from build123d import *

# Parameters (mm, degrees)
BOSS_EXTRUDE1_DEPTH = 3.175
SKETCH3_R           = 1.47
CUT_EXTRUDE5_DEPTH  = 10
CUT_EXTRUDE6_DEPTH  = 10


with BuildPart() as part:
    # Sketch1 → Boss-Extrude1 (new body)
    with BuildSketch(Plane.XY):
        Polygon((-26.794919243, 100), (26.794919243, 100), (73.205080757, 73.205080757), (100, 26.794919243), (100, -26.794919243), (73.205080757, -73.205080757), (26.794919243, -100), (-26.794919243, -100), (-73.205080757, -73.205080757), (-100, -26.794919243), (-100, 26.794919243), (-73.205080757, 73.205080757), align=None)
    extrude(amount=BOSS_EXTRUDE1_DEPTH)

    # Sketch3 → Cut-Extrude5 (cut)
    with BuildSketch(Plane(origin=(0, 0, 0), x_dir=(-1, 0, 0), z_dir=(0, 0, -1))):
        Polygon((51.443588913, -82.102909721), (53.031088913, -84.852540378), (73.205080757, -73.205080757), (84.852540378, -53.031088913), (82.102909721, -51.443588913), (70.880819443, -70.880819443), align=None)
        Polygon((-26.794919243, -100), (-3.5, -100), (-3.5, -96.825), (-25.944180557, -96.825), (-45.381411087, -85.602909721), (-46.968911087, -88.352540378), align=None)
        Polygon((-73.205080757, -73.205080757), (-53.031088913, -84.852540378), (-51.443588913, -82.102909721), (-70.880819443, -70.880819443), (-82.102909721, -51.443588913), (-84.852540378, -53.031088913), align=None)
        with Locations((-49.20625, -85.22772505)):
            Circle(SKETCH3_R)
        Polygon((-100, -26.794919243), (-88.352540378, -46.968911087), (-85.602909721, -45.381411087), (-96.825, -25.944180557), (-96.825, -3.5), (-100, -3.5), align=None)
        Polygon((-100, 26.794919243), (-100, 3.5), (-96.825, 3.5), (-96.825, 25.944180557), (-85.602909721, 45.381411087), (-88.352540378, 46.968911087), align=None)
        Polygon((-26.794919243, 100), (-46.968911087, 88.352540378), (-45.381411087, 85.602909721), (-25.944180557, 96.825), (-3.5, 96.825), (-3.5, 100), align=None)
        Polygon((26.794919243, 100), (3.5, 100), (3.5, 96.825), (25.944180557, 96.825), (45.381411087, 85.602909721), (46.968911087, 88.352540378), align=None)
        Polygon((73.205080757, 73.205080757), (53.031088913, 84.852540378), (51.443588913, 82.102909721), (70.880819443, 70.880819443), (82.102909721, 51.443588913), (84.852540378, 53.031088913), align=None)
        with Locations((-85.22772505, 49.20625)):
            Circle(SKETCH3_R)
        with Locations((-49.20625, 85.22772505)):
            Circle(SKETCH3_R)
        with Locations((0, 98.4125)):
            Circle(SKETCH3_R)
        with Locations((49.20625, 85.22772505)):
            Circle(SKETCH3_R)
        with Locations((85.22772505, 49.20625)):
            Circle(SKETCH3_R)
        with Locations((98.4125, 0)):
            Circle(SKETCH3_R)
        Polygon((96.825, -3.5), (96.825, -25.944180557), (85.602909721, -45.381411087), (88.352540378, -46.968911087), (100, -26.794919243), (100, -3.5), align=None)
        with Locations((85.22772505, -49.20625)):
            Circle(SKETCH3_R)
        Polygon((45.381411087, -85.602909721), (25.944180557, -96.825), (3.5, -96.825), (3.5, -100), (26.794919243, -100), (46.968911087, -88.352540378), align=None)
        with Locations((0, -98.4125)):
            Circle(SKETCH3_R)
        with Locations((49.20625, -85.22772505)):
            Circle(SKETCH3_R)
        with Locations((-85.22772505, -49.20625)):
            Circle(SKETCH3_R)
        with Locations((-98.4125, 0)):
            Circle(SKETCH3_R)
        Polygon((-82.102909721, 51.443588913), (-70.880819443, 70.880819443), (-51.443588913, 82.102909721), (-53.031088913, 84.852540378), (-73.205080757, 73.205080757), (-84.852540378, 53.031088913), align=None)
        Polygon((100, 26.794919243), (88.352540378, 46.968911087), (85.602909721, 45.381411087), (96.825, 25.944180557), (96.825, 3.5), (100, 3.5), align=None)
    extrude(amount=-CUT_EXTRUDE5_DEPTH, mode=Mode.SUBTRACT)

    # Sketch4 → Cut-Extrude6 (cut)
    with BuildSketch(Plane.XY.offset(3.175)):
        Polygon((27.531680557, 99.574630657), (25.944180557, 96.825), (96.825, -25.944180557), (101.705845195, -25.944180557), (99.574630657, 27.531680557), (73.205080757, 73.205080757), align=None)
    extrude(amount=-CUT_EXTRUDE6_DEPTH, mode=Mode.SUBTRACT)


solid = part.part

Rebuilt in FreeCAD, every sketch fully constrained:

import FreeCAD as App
import Part
import Sketcher
Q = App.Units.Quantity


def add_polygon(sketch, points):
    """Adds a closed chain of lines whose ends are joined by coincident constraints."""
    first, n = sketch.GeometryCount, len(points)
    for a, b in zip(points, points[1:] + points[:1]):
        sketch.addGeometry(Part.LineSegment(App.Vector(*a, 0), App.Vector(*b, 0)), False)
    for i in range(n):
        sketch.addConstraint(Sketcher.Constraint("Coincident", first + i, 2, first + (i + 1) % n, 1))

doc = App.newDocument("Part")
body = doc.addObject("PartDesign::Body", "Body")

# Sketch on XY plane
sketch1 = doc.addObject("Sketcher::SketchObject", "Sketch")
body.addObject(sketch1)
sketch1.AttachmentSupport = (doc.XY_Plane, [""])
sketch1.MapMode = "FlatFace"
add_polygon(sketch1, [(27, 100), (-27, 100), (-73, 73), (-100, 27), (-100, -27), (-73, -73), (-27, -100), (27, -100), (73, -73), (100, -27), (100, 27), (73, 73)])  # lines 0-11
sketch1.addConstraint([
    Sketcher.Constraint("Horizontal", 0),
    Sketcher.Constraint("Vertical", 3),
    Sketcher.Constraint("Horizontal", 6),
    Sketcher.Constraint("Vertical", 9),
    Sketcher.Constraint("Symmetric", 0, 2, 6, 2, -1, 1),
    Sketcher.Constraint("Symmetric", 1, 2, 7, 2, -1, 1),
    Sketcher.Constraint("Symmetric", 2, 2, 8, 2, -1, 1),
    Sketcher.Constraint("Symmetric", 4, 2, 10, 2, -1, 1),
    Sketcher.Constraint("Symmetric", 4, 2, 7, 2, -2),
    Sketcher.Constraint("Perpendicular", 1, 4),
    Sketcher.Constraint("Perpendicular", 2, 5),
    Sketcher.Constraint("Perpendicular", 7, 10),
    Sketcher.Constraint("Perpendicular", 8, 11),
    Sketcher.Constraint("Horizontal", 3, 2, 8, 2),
    Sketcher.Constraint("Equal", 6, 3),
    Sketcher.Constraint("Equal", 1, 2),
    Sketcher.Constraint("Angle", 1, Q("-150 deg")),
    Sketcher.Constraint("DistanceY", -1, 1, 0, 2, Q("100 mm")),
    Sketcher.Constraint("DistanceY", 3, 2, 1, 2, Q("100 mm")),
])
pad1 = doc.addObject("PartDesign::Pad", "Pad")
body.addObject(pad1)
pad1.Profile = sketch1
pad1.Length = 3.175

# Sketch on XY plane
sketch2 = doc.addObject("Sketcher::SketchObject", "Sketch001")
body.addObject(sketch2)
sketch2.AttachmentSupport = (doc.XY_Plane, [""])
sketch2.MapMode = "FlatFace"
add_polygon(sketch2, [(-51.4, -82.1), (-53, -84.9), (-73.2, -73.2), (-84.9, -53), (-82.1, -51.4), (-70.9, -70.9)])  # lines 0-5
add_polygon(sketch2, [(26.8, -100), (3.5, -100), (3.5, -96.8), (25.9, -96.8), (45.4, -85.6), (47, -88.4)])  # lines 6-11
add_polygon(sketch2, [(73.2, -73.2), (53, -84.9), (51.4, -82.1), (70.9, -70.9), (82.1, -51.4), (84.9, -53)])  # lines 12-17
sketch2.addGeometry(Part.Circle(App.Vector(49.2, -85.2, 0), App.Vector(0, 0, 1), 1.5), False)  # 18
add_polygon(sketch2, [(100, -26.8), (88.4, -47), (85.6, -45.4), (96.8, -25.9), (96.8, -3.5), (100, -3.5)])  # lines 19-24
add_polygon(sketch2, [(100, 26.8), (100, 3.5), (96.8, 3.5), (96.8, 25.9), (85.6, 45.4), (88.4, 47)])  # lines 25-30
add_polygon(sketch2, [(26.8, 100), (47, 88.4), (45.4, 85.6), (25.9, 96.8), (3.5, 96.8), (3.5, 100)])  # lines 31-36
add_polygon(sketch2, [(-26.8, 100), (-3.5, 100), (-3.5, 96.8), (-25.9, 96.8), (-45.4, 85.6), (-47, 88.4)])  # lines 37-42
add_polygon(sketch2, [(-73.2, 73.2), (-53, 84.9), (-51.4, 82.1), (-70.9, 70.9), (-82.1, 51.4), (-84.9, 53)])  # lines 43-48
sketch2.addGeometry(Part.Circle(App.Vector(85.2, 49.2, 0), App.Vector(0, 0, 1), 1.5), False)  # 49
sketch2.addGeometry(Part.Circle(App.Vector(49.2, 85.2, 0), App.Vector(0, 0, 1), 1.5), False)  # 50
sketch2.addGeometry(Part.Circle(App.Vector(0, 98.4, 0), App.Vector(0, 0, 1), 1.5), False)  # 51
sketch2.addGeometry(Part.Circle(App.Vector(-49.2, 85.2, 0), App.Vector(0, 0, 1), 1.5), False)  # 52
sketch2.addGeometry(Part.Circle(App.Vector(-85.2, 49.2, 0), App.Vector(0, 0, 1), 1.5), False)  # 53
sketch2.addGeometry(Part.Circle(App.Vector(-98.4, 0, 0), App.Vector(0, 0, 1), 1.5), False)  # 54
add_polygon(sketch2, [(-96.8, -3.5), (-96.8, -25.9), (-85.6, -45.4), (-88.4, -47), (-100, -26.8), (-100, -3.5)])  # lines 55-60
sketch2.addGeometry(Part.Circle(App.Vector(-85.2, -49.2, 0), App.Vector(0, 0, 1), 1.5), False)  # 61
add_polygon(sketch2, [(-45.4, -85.6), (-25.9, -96.8), (-3.5, -96.8), (-3.5, -100), (-26.8, -100), (-47, -88.4)])  # lines 62-67
sketch2.addGeometry(Part.Circle(App.Vector(0, -98.4, 0), App.Vector(0, 0, 1), 1.5), False)  # 68
sketch2.addGeometry(Part.Circle(App.Vector(-49.2, -85.2, 0), App.Vector(0, 0, 1), 1.5), False)  # 69
sketch2.addGeometry(Part.Circle(App.Vector(85.2, -49.2, 0), App.Vector(0, 0, 1), 1.5), False)  # 70
sketch2.addGeometry(Part.Circle(App.Vector(98.4, 0, 0), App.Vector(0, 0, 1), 1.5), False)  # 71
add_polygon(sketch2, [(82.1, 51.4), (70.9, 70.9), (51.4, 82.1), (53, 84.9), (73.2, 73.2), (84.9, 53)])  # lines 72-77
add_polygon(sketch2, [(-100, 26.8), (-88.4, 47), (-85.6, 45.4), (-96.8, 25.9), (-96.8, 3.5), (-100, 3.5)])  # lines 78-83
sketch2.addConstraint([
    Sketcher.Constraint("Horizontal", 6),
    Sketcher.Constraint("Vertical", 7),
    Sketcher.Constraint("Horizontal", 8),
    Sketcher.Constraint("Vertical", 22),
    Sketcher.Constraint("Horizontal", 23),
    Sketcher.Constraint("Vertical", 24),
    Sketcher.Constraint("Vertical", 25),
    Sketcher.Constraint("Horizontal", 26),
    Sketcher.Constraint("Vertical", 27),
    Sketcher.Constraint("Horizontal", 34),
    Sketcher.Constraint("Vertical", 35),
    Sketcher.Constraint("Horizontal", 36),
    Sketcher.Constraint("Horizontal", 37),
    Sketcher.Constraint("Vertical", 38),
    Sketcher.Constraint("Horizontal", 39),
    Sketcher.Constraint("Vertical", 55),
    Sketcher.Constraint("Vertical", 59),
    Sketcher.Constraint("Horizontal", 60),
    Sketcher.Constraint("Horizontal", 63),
    Sketcher.Constraint("Vertical", 64),
    Sketcher.Constraint("Horizontal", 65),
    Sketcher.Constraint("Vertical", 81),
    Sketcher.Constraint("Horizontal", 82),
    Sketcher.Constraint("Vertical", 83),
    Sketcher.Constraint("Equal", 18, 49),
    Sketcher.Constraint("Equal", 49, 50),
    Sketcher.Constraint("Equal", 50, 51),
    Sketcher.Constraint("Equal", 51, 52),
    Sketcher.Constraint("Equal", 52, 53),
    Sketcher.Constraint("Equal", 53, 54),
    Sketcher.Constraint("Equal", 54, 61),
    Sketcher.Constraint("Equal", 61, 68),
    Sketcher.Constraint("Equal", 68, 69),
    Sketcher.Constraint("Equal", 69, 70),
    Sketcher.Constraint("Equal", 70, 71),
    Sketcher.Constraint("Symmetric", 18, 3, 52, 3, -1, 1),
    Sketcher.Constraint("Symmetric", 49, 3, 61, 3, -1, 1),
    Sketcher.Constraint("Symmetric", 51, 3, 68, 3, -1, 1),
    Sketcher.Constraint("Symmetric", 50, 3, 69, 3, -1, 1),
    Sketcher.Constraint("Symmetric", 53, 3, 70, 3, -1, 1),
    Sketcher.Constraint("Symmetric", 54, 3, 71, 3, -1, 1),
    Sketcher.Constraint("Symmetric", 6, 2, 37, 2, -1, 1),
    Sketcher.Constraint("Symmetric", 8, 2, 39, 2, -1, 1),
    Sketcher.Constraint("Symmetric", 9, 2, 40, 2, -1, 1),
    Sketcher.Constraint("Symmetric", 10, 2, 41, 2, -1, 1),
    Sketcher.Constraint("Symmetric", 12, 2, 43, 2, -1, 1),
    Sketcher.Constraint("Symmetric", 13, 2, 44, 2, -1, 1),
    Sketcher.Constraint("Symmetric", 14, 2, 45, 2, -1, 1),
    Sketcher.Constraint("Symmetric", 15, 2, 46, 2, -1, 1),
    Sketcher.Constraint("Symmetric", 16, 2, 47, 2, -1, 1),
    Sketcher.Constraint("Symmetric", 17, 2, 48, 2, -1, 1),
    Sketcher.Constraint("Symmetric", 27, 2, 55, 2, -1, 1),
    Sketcher.Constraint("Symmetric", 28, 2, 56, 2, -1, 1),
    Sketcher.Constraint("Symmetric", 29, 2, 57, 2, -1, 1),
    Sketcher.Constraint("Symmetric", 30, 2, 58, 2, -1, 1),
    Sketcher.Constraint("Symmetric", 33, 2, 62, 2, -1, 1),
    Sketcher.Constraint("Symmetric", 35, 2, 64, 2, -1, 1),
    Sketcher.Constraint("Symmetric", 31, 2, 66, 2, -1, 1),
    Sketcher.Constraint("Symmetric", 32, 2, 67, 2, -1, 1),
    Sketcher.Constraint("Symmetric", 4, 2, 72, 2, -1, 1),
    Sketcher.Constraint("Symmetric", 5, 2, 73, 2, -1, 1),
    Sketcher.Constraint("Symmetric", 0, 2, 74, 2, -1, 1),
    Sketcher.Constraint("Symmetric", 1, 2, 75, 2, -1, 1),
    Sketcher.Constraint("Symmetric", 2, 2, 76, 2, -1, 1),
    Sketcher.Constraint("Symmetric", 3, 2, 77, 2, -1, 1),
    Sketcher.Constraint("Symmetric", 19, 2, 78, 2, -1, 1),
    Sketcher.Constraint("Symmetric", 20, 2, 79, 2, -1, 1),
    Sketcher.Constraint("Symmetric", 21, 2, 80, 2, -1, 1),
    Sketcher.Constraint("Symmetric", 23, 2, 82, 2, -1, 1),
    Sketcher.Constraint("Symmetric", 50, 3, 52, 3, -2),
    Sketcher.Constraint("Symmetric", 49, 3, 53, 3, -2),
    Sketcher.Constraint("Symmetric", 0, 2, 12, 2, -2),
    Sketcher.Constraint("Symmetric", 5, 2, 13, 2, -2),
    Sketcher.Constraint("Symmetric", 4, 2, 14, 2, -2),
    Sketcher.Constraint("Symmetric", 3, 2, 15, 2, -2),
    Sketcher.Constraint("Symmetric", 2, 2, 16, 2, -2),
    Sketcher.Constraint("Symmetric", 1, 2, 17, 2, -2),
    Sketcher.Constraint("Symmetric", 35, 2, 37, 2, -2),
    Sketcher.Constraint("Symmetric", 33, 2, 39, 2, -2),
    Sketcher.Constraint("Symmetric", 32, 2, 40, 2, -2),
    Sketcher.Constraint("Symmetric", 31, 2, 41, 2, -2),
    Sketcher.Constraint("Symmetric", 21, 2, 55, 2, -2),
    Sketcher.Constraint("Symmetric", 20, 2, 56, 2, -2),
    Sketcher.Constraint("Symmetric", 19, 2, 57, 2, -2),
    Sketcher.Constraint("Symmetric", 24, 2, 58, 2, -2),
    Sketcher.Constraint("PointOnObject", 51, 3, -2),
    Sketcher.Constraint("PointOnObject", 54, 3, -1),
    Sketcher.Constraint("Perpendicular", 0, 1),
    Sketcher.Constraint("Perpendicular", 2, 3),
    Sketcher.Constraint("Perpendicular", 3, 4),
    Sketcher.Constraint("Parallel", 1, 5),
    Sketcher.Constraint("Perpendicular", 4, 9),
    Sketcher.Constraint("Perpendicular", 9, 10),
    Sketcher.Constraint("Perpendicular", 10, 11),
    Sketcher.Constraint("Parallel", 11, 12),
    Sketcher.Constraint("Parallel", 17, 19),
    Sketcher.Constraint("Perpendicular", 19, 20),
    Sketcher.Constraint("Perpendicular", 20, 21),
    Sketcher.Constraint("Perpendicular", 21, 31),
    Sketcher.Constraint("Perpendicular", 41, 42),
    Sketcher.Constraint("Parallel", 62, 66),
    Sketcher.Constraint("Perpendicular", 75, 78),
    Sketcher.Constraint("Horizontal", 23, 2, 59, 2),
    Sketcher.Constraint("Horizontal", 26, 2, 81, 2),
    Sketcher.Constraint("Equal", 82, 7),
    Sketcher.Constraint("Equal", 63, 22),
    Sketcher.Constraint("Equal", 65, 24),
    Sketcher.Constraint("Equal", 1, 2),
    Sketcher.Constraint("Equal", 0, 3),
    Sketcher.Constraint("Equal", 5, 9),
    Sketcher.Constraint("Equal", 3, 10),
    Sketcher.Constraint("Equal", 2, 11),
    Sketcher.Constraint("Equal", 17, 19),
    Sketcher.Constraint("Diameter", 18, Q("2.94 mm")),
    Sketcher.Constraint("Angle", 0, Q("-120 deg")),
    Sketcher.Constraint("DistanceY", 6, 2, -1, 1, Q("100 mm")),
    Sketcher.Constraint("DistanceX", -1, 1, 23, 2, Q("100 mm")),
    Sketcher.Constraint("DistanceX", -1, 1, 6, 2, Q("3.5 mm")),
    Sketcher.Constraint("DistanceY", 22, 2, -1, 1, Q("3.5 mm")),
    Sketcher.Constraint("DistanceX", 23, 1, 23, 2, Q("3.175 mm")),
    Sketcher.Constraint("DistanceX", 6, 2, 6, 1, Q("23.294919 mm")),
    Sketcher.Constraint("DistanceY", -1, 1, 51, 3, Q("98.4125 mm")),
    Sketcher.Constraint("DistanceX", 54, 3, -1, 1, Q("98.4125 mm")),
    Sketcher.Constraint("Distance", 1, Q("23.294919 mm")),
    Sketcher.Constraint("DistanceX", -1, 1, 18, 3, Q("49.20625 mm")),
    Sketcher.Constraint("DistanceY", -1, 1, 49, 3, Q("49.20625 mm")),
    Sketcher.Constraint("DistanceX", 0, 2, -1, 1, Q("53.031089 mm")),
    Sketcher.Constraint("DistanceY", 0, 2, -1, 1, Q("84.85254 mm")),
    Sketcher.Constraint("DistanceY", 18, 3, -1, 1, Q("85.227725 mm")),
    Sketcher.Constraint("DistanceX", -1, 1, 49, 3, Q("85.227725 mm")),
])
pocket1 = doc.addObject("PartDesign::Pocket", "Pocket")
body.addObject(pocket1)
pocket1.Profile = sketch2
pocket1.Length = 10
pocket1.Reversed = True

# Sketch on XY plane
sketch3 = doc.addObject("Sketcher::SketchObject", "Sketch002")
body.addObject(sketch3)
sketch3.AttachmentSupport = (doc.XY_Plane, [""])
sketch3.MapMode = "FlatFace"
sketch3.AttachmentOffset = App.Placement(App.Vector(0, 0, 3.175), App.Rotation())
add_polygon(sketch3, [(27.5, 99.6), (25.9, 96.8), (96.8, -25.9), (101.7, -25.9), (99.6, 27.5), (73.2, 73.2)])  # lines 0-5
sketch3.addConstraint([
    Sketcher.Constraint("Horizontal", 2),
    Sketcher.Constraint("Parallel", 1, 4),
    Sketcher.Constraint("Perpendicular", 0, 5),
    Sketcher.Constraint("Equal", 4, 5),
    Sketcher.Constraint("Angle", 0, Q("-120 deg")),
    Sketcher.Constraint("Angle", 1, Q("-60 deg")),
    Sketcher.Constraint("Distance", 0, Q("3.175 mm")),
    Sketcher.Constraint("DistanceY", -1, 1, 0, 2, Q("96.825 mm")),
    Sketcher.Constraint("DistanceX", -1, 1, 1, 2, Q("96.825 mm")),
    Sketcher.Constraint("Distance", 4, Q("52.7391 mm")),
    Sketcher.Constraint("Distance", 1, Q("141.761639 mm")),
    Sketcher.Constraint("DistanceX", 2, 1, 2, 2, Q("4.880845 mm")),
])
pocket2 = doc.addObject("PartDesign::Pocket", "Pocket001")
body.addObject(pocket2)
pocket2.Profile = sketch3
pocket2.Length = 10

doc.recompute()
